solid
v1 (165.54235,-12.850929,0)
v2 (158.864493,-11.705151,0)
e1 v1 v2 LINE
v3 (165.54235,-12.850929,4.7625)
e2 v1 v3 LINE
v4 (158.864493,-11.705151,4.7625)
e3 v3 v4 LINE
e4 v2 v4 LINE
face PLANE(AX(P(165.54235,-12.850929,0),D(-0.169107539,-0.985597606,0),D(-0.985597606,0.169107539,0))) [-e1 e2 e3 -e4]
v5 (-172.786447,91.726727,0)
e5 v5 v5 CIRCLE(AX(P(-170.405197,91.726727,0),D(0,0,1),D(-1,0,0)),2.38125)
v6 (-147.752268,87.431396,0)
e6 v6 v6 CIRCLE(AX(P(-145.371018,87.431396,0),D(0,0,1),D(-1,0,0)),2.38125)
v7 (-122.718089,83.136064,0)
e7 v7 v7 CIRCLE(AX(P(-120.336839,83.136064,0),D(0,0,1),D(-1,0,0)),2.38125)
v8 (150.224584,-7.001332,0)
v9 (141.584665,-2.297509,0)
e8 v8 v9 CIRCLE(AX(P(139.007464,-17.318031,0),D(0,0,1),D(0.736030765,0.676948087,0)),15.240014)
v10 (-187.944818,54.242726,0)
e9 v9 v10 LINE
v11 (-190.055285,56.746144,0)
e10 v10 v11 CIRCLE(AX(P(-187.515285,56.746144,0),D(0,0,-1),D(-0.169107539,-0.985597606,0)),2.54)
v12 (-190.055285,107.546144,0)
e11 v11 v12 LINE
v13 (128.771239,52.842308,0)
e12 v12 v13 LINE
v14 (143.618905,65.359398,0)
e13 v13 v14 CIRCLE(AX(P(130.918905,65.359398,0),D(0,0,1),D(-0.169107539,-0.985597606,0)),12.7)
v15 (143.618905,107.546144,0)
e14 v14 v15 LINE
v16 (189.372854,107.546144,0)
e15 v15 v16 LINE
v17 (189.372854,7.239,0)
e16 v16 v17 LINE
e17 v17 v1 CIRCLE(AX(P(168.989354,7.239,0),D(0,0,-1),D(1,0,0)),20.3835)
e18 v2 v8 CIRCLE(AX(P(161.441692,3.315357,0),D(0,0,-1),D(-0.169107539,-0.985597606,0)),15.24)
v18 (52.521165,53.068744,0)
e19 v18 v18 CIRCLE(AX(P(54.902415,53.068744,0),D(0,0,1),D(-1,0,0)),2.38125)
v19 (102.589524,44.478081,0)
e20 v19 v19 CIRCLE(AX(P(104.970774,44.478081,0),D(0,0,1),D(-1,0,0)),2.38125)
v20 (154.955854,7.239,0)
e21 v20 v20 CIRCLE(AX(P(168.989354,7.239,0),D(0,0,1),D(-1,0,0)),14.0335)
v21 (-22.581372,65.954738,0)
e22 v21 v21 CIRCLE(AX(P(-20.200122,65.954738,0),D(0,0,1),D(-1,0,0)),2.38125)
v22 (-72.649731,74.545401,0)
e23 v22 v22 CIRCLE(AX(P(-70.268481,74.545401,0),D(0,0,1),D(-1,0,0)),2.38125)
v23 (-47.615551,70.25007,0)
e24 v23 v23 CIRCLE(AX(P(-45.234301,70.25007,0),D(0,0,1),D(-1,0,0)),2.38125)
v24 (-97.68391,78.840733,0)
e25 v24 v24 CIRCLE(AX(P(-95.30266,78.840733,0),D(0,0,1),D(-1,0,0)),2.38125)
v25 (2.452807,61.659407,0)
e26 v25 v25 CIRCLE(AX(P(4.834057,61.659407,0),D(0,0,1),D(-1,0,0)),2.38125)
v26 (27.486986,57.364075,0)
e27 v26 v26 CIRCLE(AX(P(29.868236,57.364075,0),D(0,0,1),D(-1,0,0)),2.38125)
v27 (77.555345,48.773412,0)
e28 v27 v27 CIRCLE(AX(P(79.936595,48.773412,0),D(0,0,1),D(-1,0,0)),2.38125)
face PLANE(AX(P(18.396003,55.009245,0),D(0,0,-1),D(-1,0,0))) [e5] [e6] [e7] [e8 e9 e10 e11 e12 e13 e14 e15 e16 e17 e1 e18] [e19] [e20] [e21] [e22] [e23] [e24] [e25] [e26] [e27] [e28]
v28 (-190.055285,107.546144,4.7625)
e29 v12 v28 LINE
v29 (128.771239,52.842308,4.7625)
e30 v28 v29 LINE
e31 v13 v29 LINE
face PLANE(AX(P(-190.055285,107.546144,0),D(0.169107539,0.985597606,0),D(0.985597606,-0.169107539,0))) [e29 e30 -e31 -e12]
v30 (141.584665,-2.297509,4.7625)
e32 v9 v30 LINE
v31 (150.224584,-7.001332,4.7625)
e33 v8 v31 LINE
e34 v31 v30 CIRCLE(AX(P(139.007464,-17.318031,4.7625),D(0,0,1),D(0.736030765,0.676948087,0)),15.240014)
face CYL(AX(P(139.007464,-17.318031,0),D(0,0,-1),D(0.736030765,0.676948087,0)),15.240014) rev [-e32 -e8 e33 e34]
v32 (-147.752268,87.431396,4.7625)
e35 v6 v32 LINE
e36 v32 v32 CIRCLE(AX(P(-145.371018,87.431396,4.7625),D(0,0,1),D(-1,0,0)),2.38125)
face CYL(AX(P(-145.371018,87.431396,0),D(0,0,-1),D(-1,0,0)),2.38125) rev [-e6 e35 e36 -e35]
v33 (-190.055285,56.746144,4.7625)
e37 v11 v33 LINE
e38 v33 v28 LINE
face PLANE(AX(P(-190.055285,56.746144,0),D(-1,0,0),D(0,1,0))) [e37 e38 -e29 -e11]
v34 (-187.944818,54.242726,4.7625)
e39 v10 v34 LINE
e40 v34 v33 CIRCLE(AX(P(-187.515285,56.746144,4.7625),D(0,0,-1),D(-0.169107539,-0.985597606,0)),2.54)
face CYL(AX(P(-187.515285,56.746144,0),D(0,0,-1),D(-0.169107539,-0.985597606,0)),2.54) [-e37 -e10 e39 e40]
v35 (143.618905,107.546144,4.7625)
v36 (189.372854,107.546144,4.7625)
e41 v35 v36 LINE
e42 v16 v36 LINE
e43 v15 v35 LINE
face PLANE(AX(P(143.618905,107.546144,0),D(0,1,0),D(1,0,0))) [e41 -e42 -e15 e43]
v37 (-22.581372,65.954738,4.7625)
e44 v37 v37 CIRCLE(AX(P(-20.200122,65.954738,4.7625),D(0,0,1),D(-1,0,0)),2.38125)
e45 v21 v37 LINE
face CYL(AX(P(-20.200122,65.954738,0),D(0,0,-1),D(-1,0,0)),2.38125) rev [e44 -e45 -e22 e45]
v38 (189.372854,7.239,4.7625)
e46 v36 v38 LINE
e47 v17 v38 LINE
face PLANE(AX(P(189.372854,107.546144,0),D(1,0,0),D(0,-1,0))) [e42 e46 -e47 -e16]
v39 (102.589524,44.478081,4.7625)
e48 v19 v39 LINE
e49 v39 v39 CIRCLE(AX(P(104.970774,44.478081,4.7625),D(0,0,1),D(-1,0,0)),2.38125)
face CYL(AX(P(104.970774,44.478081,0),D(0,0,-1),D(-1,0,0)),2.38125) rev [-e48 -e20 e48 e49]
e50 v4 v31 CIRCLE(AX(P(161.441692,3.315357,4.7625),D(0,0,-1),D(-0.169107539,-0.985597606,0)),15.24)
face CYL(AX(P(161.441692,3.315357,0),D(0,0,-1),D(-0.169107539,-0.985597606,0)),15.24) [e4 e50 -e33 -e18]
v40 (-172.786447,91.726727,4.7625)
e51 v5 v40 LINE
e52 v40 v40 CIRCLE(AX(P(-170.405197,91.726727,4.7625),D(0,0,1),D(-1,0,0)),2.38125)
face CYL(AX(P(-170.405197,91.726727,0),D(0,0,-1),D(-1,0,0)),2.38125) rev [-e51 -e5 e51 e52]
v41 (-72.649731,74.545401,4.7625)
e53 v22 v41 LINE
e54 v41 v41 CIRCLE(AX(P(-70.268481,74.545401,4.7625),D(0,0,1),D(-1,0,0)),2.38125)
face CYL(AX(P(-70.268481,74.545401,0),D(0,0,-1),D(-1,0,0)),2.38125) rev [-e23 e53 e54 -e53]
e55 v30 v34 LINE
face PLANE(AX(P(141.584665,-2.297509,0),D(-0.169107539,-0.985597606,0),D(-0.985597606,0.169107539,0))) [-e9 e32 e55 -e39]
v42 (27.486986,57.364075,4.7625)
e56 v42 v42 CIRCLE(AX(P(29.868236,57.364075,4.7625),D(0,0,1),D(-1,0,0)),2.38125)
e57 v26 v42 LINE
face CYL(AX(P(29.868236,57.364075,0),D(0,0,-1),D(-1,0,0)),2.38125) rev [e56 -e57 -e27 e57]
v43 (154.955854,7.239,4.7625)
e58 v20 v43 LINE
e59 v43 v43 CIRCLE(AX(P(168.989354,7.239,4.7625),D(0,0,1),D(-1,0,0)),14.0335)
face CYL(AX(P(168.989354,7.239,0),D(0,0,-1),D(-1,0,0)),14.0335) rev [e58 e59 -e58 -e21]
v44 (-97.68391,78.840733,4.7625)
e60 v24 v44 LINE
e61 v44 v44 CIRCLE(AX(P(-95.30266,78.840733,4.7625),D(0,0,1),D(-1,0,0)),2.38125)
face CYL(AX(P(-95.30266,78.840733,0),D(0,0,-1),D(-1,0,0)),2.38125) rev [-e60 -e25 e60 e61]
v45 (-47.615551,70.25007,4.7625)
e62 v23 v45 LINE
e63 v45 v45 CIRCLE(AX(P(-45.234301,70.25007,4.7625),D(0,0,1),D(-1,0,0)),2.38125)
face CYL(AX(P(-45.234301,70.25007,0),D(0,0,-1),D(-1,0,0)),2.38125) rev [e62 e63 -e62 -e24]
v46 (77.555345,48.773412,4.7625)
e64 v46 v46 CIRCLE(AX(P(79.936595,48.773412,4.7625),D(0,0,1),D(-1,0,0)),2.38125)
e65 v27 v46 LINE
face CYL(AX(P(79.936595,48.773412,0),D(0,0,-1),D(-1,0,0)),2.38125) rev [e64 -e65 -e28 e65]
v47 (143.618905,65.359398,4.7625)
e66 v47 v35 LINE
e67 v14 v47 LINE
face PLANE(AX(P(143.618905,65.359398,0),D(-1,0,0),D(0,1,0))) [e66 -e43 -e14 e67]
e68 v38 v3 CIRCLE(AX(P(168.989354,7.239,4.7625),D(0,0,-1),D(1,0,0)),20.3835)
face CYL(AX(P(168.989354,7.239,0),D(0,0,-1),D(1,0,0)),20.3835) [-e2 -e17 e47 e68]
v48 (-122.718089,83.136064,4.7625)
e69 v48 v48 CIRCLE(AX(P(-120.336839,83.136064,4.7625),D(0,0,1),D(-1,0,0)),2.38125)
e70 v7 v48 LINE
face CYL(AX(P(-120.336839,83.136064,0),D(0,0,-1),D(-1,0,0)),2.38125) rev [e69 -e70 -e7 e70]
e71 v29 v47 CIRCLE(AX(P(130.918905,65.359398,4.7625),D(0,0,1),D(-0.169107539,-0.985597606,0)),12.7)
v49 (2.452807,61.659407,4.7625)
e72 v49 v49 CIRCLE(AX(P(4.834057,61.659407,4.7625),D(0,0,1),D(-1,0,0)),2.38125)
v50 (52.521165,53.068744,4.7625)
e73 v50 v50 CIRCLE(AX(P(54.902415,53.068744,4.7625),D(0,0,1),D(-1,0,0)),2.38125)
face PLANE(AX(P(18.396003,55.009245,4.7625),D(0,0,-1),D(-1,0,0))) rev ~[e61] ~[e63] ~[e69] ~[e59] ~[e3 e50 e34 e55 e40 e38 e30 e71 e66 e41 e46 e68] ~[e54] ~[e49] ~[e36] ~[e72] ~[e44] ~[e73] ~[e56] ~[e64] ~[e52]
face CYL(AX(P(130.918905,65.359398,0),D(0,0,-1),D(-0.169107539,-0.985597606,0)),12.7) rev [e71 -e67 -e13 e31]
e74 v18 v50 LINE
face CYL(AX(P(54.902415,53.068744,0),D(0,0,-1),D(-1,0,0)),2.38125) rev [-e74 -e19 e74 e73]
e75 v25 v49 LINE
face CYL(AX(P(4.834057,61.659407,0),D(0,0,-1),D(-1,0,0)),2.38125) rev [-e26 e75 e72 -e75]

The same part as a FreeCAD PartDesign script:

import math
import FreeCAD as App
import Part
import Sketcher
from FreeCAD import Vector
Q = App.Units.Quantity

doc = App.newDocument("Part")
body = doc.addObject("PartDesign::Body", "Body")

# Sketch on XY plane
sketch1 = body.newObject("Sketcher::SketchObject", "Sketch")
sketch1.AttachmentSupport = (doc.getObject("XY_Plane"), [""])
sketch1.MapMode = "FlatFace"
sketch1.addGeometry(Part.LineSegment(Vector(158.864493, -11.705151, 0), Vector(165.54235, -12.850929, 0)), False)
sketch1.addGeometry(Part.ArcOfCircle(Part.Circle(Vector(168.989354, 7.239, 0), Vector(0, 0, 1), 20.3835), math.radians(-99.735934), math.radians(0)), False)
sketch1.addGeometry(Part.LineSegment(Vector(189.372854, 7.239, 0), Vector(189.372854, 107.546144, 0)), False)
sketch1.addGeometry(Part.LineSegment(Vector(189.372854, 107.546144, 0), Vector(143.618905, 107.546144, 0)), False)
sketch1.addGeometry(Part.LineSegment(Vector(143.618905, 107.546144, 0), Vector(143.618905, 65.359398, 0)), False)
sketch1.addGeometry(Part.ArcOfCircle(Part.Circle(Vector(130.918905, 65.359398, 0), Vector(0, 0, 1), 12.7), math.radians(-99.735934), math.radians(0)), False)
sketch1.addGeometry(Part.LineSegment(Vector(128.771239, 52.842308, 0), Vector(-190.055285, 107.546144, 0)), False)
sketch1.addGeometry(Part.LineSegment(Vector(-190.055285, 107.546144, 0), Vector(-190.055285, 56.746144, 0)), False)
sketch1.addGeometry(Part.ArcOfCircle(Part.Circle(Vector(-187.515285, 56.746144, 0), Vector(0, 0, 1), 2.54), math.radians(180), math.radians(260.264066)), False)
sketch1.addGeometry(Part.LineSegment(Vector(-187.944818, 54.242726, 0), Vector(141.584665, -2.297509, 0)), False)
sketch1.addGeometry(Part.ArcOfCircle(Part.Circle(Vector(139.007464, -17.318031, 0), Vector(0, 0, 1), 15.240014), math.radians(42.605614), math.radians(80.264066)), False)
sketch1.addGeometry(Part.ArcOfCircle(Part.Circle(Vector(161.441692, 3.315357, 0), Vector(0, 0, 1), 15.24), math.radians(-137.394386), math.radians(-99.735934)), False)
sketch1.addGeometry(Part.Circle(Vector(168.989354, 7.239, 0), Vector(0, 0, 1), 14.0335), False)
sketch1.addGeometry(Part.Circle(Vector(104.970774, 44.478081, 0), Vector(0, 0, 1), 2.38125), False)
sketch1.addGeometry(Part.Circle(Vector(79.936595, 48.773412, 0), Vector(0, 0, 1), 2.38125), False)
sketch1.addGeometry(Part.Circle(Vector(54.902415, 53.068744, 0), Vector(0, 0, 1), 2.38125), False)
sketch1.addGeometry(Part.Circle(Vector(29.868236, 57.364075, 0), Vector(0, 0, 1), 2.38125), False)
sketch1.addGeometry(Part.Circle(Vector(4.834057, 61.659407, 0), Vector(0, 0, 1), 2.38125), False)
sketch1.addGeometry(Part.Circle(Vector(-20.200122, 65.954738, 0), Vector(0, 0, 1), 2.38125), False)
sketch1.addGeometry(Part.Circle(Vector(-45.234301, 70.25007, 0), Vector(0, 0, 1), 2.38125), False)
sketch1.addGeometry(Part.Circle(Vector(-70.268481, 74.545401, 0), Vector(0, 0, 1), 2.38125), False)
sketch1.addGeometry(Part.Circle(Vector(-95.30266, 78.840733, 0), Vector(0, 0, 1), 2.38125), False)
sketch1.addGeometry(Part.Circle(Vector(-120.336839, 83.136064, 0), Vector(0, 0, 1), 2.38125), False)
sketch1.addGeometry(Part.Circle(Vector(-145.371018, 87.431396, 0), Vector(0, 0, 1), 2.38125), False)
sketch1.addGeometry(Part.Circle(Vector(-170.405197, 91.726727, 0), Vector(0, 0, 1), 2.38125), False)
sketch1.addConstraint(Sketcher.Constraint("Coincident", 0, 2, 1, 1))
sketch1.addConstraint(Sketcher.Constraint("Coincident", 1, 2, 2, 1))
sketch1.addConstraint(Sketcher.Constraint("Coincident", 2, 2, 3, 1))
sketch1.addConstraint(Sketcher.Constraint("Coincident", 3, 2, 4, 1))
sketch1.addConstraint(Sketcher.Constraint("Coincident", 4, 2, 5, 2))
sketch1.addConstraint(Sketcher.Constraint("Coincident", 5, 1, 6, 1))
sketch1.addConstraint(Sketcher.Constraint("Coincident", 6, 2, 7, 1))
sketch1.addConstraint(Sketcher.Constraint("Coincident", 7, 2, 8, 1))
sketch1.addConstraint(Sketcher.Constraint("Coincident", 8, 2, 9, 1))
sketch1.addConstraint(Sketcher.Constraint("Coincident", 9, 2, 10, 2))
sketch1.addConstraint(Sketcher.Constraint("Coincident", 10, 1, 11, 1))
sketch1.addConstraint(Sketcher.Constraint("Coincident", 11, 2, 0, 1))
sketch1.addConstraint(Sketcher.Constraint("Vertical", 2))
sketch1.addConstraint(Sketcher.Constraint("Horizontal", 3))
sketch1.addConstraint(Sketcher.Constraint("Vertical", 4))
sketch1.addConstraint(Sketcher.Constraint("Vertical", 7))
sketch1.addConstraint(Sketcher.Constraint("Coincident", 12, 3, 1, 3))
sketch1.addConstraint(Sketcher.Constraint("Radius", 5, Q("0.5 in")))
sketch1.addConstraint(Sketcher.Constraint("Radius", 8, Q("0.1 in")))
sketch1.addConstraint(Sketcher.Constraint("Radius", 11, Q("0.6 in")))
sketch1.addConstraint(Sketcher.Constraint("DistanceY", 7, 2, 7, 1, Q("2 in")))
sketch1.addConstraint(Sketcher.Constraint("Diameter", 12, Q("1.105 in")))
sketch1.addConstraint(Sketcher.Constraint("Diameter", 13, Q("0.1875 in")))
sketch1.addConstraint(Sketcher.Constraint("Diameter", 14, Q("0.1875 in")))
sketch1.addConstraint(Sketcher.Constraint("Diameter", 15, Q("0.1875 in")))
sketch1.addConstraint(Sketcher.Constraint("Diameter", 16, Q("0.1875 in")))
sketch1.addConstraint(Sketcher.Constraint("Diameter", 17, Q("0.1875 in")))
sketch1.addConstraint(Sketcher.Constraint("Diameter", 18, Q("0.1875 in")))
sketch1.addConstraint(Sketcher.Constraint("Diameter", 19, Q("0.1875 in")))
sketch1.addConstraint(Sketcher.Constraint("Diameter", 20, Q("0.1875 in")))
sketch1.addConstraint(Sketcher.Constraint("Diameter", 21, Q("0.1875 in")))
sketch1.addConstraint(Sketcher.Constraint("Diameter", 22, Q("0.1875 in")))
sketch1.addConstraint(Sketcher.Constraint("Diameter", 23, Q("0.1875 in")))
sketch1.addConstraint(Sketcher.Constraint("Diameter", 24, Q("0.1875 in")))
sketch1.addConstraint(Sketcher.Constraint("DistanceY", 8, 3, 6, 2, Q("2 in")))
sketch1.addConstraint(Sketcher.Constraint("Radius", 1, Q("0.8025 in")))
sketch1.addConstraint(Sketcher.Constraint("DistanceY", 2, 1, 2, 2, Q("3.9491001 in")))
sketch1.addConstraint(Sketcher.Constraint("DistanceY", -1, 1, 1, 3, Q("0.285 in")))
sketch1.addConstraint(Sketcher.Constraint("DistanceY", -1, 1, 1, 2, Q("0.285 in")))
sketch1.addConstraint(Sketcher.Constraint("DistanceY", -1, 1, 8, 3, Q("2.2341001 in")))
sketch1.addConstraint(Sketcher.Constraint("Radius", 10, Q("15.240014 mm")))
sketch1.addConstraint(Sketcher.Constraint("DistanceX", 3, 2, 3, 1, Q("45.753949 mm")))
sketch1.addConstraint(Sketcher.Constraint("DistanceY", -1, 1, 5, 3, Q("65.359398 mm")))
sketch1.addConstraint(Sketcher.Constraint("DistanceX", 19, 3, -1, 1, Q("45.234301 mm")))
sketch1.addConstraint(Sketcher.Constraint("DistanceY", -1, 1, 20, 3, Q("74.545401 mm")))
sketch1.addConstraint(Sketcher.Constraint("DistanceY", -1, 1, 4, 2, Q("65.359398 mm")))
sketch1.addConstraint(Sketcher.Constraint("DistanceY", 8, 2, 24, 3, Q("37.484001 mm")))
sketch1.addConstraint(Sketcher.Constraint("DistanceX", 8, 2, 23, 3, Q("42.5738 mm")))
sketch1.addConstraint(Sketcher.Constraint("DistanceX", 10, 3, 9, 2, Q("2.577201 mm")))
sketch1.addConstraint(Sketcher.Constraint("DistanceY", 10, 3, 10, 1, Q("10.316699 mm")))
sketch1.addConstraint(Sketcher.Constraint("DistanceX", 11, 2, 11, 3, Q("2.577199 mm")))
sketch1.addConstraint(Sketcher.Constraint("Distance", 0, Q("6.77544 mm")))
sketch1.addConstraint(Sketcher.Constraint("Distance", 6, Q("323.48549 mm")))
sketch1.addConstraint(Sketcher.Constraint("Distance", 9, Q("334.34485 mm")))
sketch1.addConstraint(Sketcher.Constraint("DistanceY", 10, 3, -1, 1, Q("17.318031 mm")))
sketch1.addConstraint(Sketcher.Constraint("DistanceY", -1, 1, 13, 3, Q("44.478081 mm")))
sketch1.addConstraint(Sketcher.Constraint("DistanceY", -1, 1, 18, 3, Q("65.954738 mm")))
sketch1.addConstraint(Sketcher.Constraint("DistanceY", -1, 1, 19, 3, Q("70.25007 mm")))
sketch1.addConstraint(Sketcher.Constraint("DistanceX", 20, 3, -1, 1, Q("70.268481 mm")))
sketch1.addConstraint(Sketcher.Constraint("DistanceX", 21, 3, -1, 1, Q("95.30266 mm")))
sketch1.addConstraint(Sketcher.Constraint("DistanceX", 22, 3, -1, 1, Q("120.336839 mm")))
sketch1.addConstraint(Sketcher.Constraint("DistanceX", 23, 3, -1, 1, Q("145.371018 mm")))
sketch1.addConstraint(Sketcher.Constraint("DistanceX", -1, 1, 0, 2, Q("165.54235 mm")))
sketch1.addConstraint(Sketcher.Constraint("DistanceY", 0, 2, -1, 1, Q("12.850929 mm")))
sketch1.addConstraint(Sketcher.Constraint("DistanceX", -1, 1, 5, 1, Q("128.771239 mm")))
sketch1.addConstraint(Sketcher.Constraint("DistanceX", 13, 3, 5, 3, Q("25.948131 mm")))
sketch1.addConstraint(Sketcher.Constraint("DistanceX", 14, 3, 13, 3, Q("25.034179 mm")))
sketch1.addConstraint(Sketcher.Constraint("DistanceY", 13, 3, 14, 3, Q("4.295331 mm")))
sketch1.addConstraint(Sketcher.Constraint("DistanceX", 15, 3, 14, 3, Q("25.034179 mm")))
sketch1.addConstraint(Sketcher.Constraint("DistanceY", 14, 3, 15, 3, Q("4.295331 mm")))
sketch1.addConstraint(Sketcher.Constraint("DistanceX", 16, 3, 15, 3, Q("25.034179 mm")))
sketch1.addConstraint(Sketcher.Constraint("DistanceY", 15, 3, 16, 3, Q("4.295331 mm")))
sketch1.addConstraint(Sketcher.Constraint("DistanceX", 17, 3, 16, 3, Q("25.034179 mm")))
sketch1.addConstraint(Sketcher.Constraint("DistanceY", 16, 3, 17, 3, Q("4.295331 mm")))
sketch1.addConstraint(Sketcher.Constraint("DistanceX", 18, 3, 17, 3, Q("25.034179 mm")))
sketch1.addConstraint(Sketcher.Constraint("DistanceY", 20, 3, 21, 3, Q("4.295331 mm")))
sketch1.addConstraint(Sketcher.Constraint("DistanceY", 21, 3, 22, 3, Q("4.295331 mm")))
sketch1.addConstraint(Sketcher.Constraint("DistanceY", 22, 3, 23, 3, Q("4.295331 mm")))
sketch1.addConstraint(Sketcher.Constraint("DistanceX", 24, 3, 23, 3, Q("25.034179 mm")))
pad1 = body.newObject("PartDesign::Pad", "Pad")
pad1.Profile = sketch1
pad1.Length = Q("0.1875 in")

# Sketch on XY plane
sketch2 = body.newObject("Sketcher::SketchObject", "Sketch001")
sketch2.AttachmentSupport = (doc.getObject("XY_Plane"), [""])
sketch2.MapMode = "FlatFace"
sketch2.AttachmentOffset = App.Placement(Vector(0, 0, 0.1875 * 25.4), App.Rotation())
sketch2.addGeometry(Part.LineSegment(Vector(115.993329, 323.427961, 0), Vector(125.872854, 333.307486, 0)), False)
sketch2.addGeometry(Part.LineSegment(Vector(125.872854, 333.307486, 0), Vector(17.922854, 333.307486, 0)), False)
sketch2.addGeometry(Part.LineSegment(Vector(17.922854, 333.307486, 0), Vector(107.375069, 320.553881, 0)), False)
sketch2.addGeometry(Part.ArcOfCircle(Part.Circle(Vector(108.809124, 330.612166, 0), Vector(0, 0, 1), 10.16), math.radians(-98.114231), math.radians(-45)), False)
sketch2.addConstraint(Sketcher.Constraint("Coincident", 0, 2, 1, 1))
sketch2.addConstraint(Sketcher.Constraint("Coincident", 1, 2, 2, 1))
sketch2.addConstraint(Sketcher.Constraint("Tangent", 2, 2, 3, 1))
sketch2.addConstraint(Sketcher.Constraint("Tangent", 3, 2, 0, 1))
sketch2.addConstraint(Sketcher.Constraint("Horizontal", 1))
sketch2.addConstraint(Sketcher.Constraint("Radius", 3, Q("0.4 in")))
sketch2.addConstraint(Sketcher.Constraint("Angle", 0, Q("45 deg")))
sketch2.addConstraint(Sketcher.Constraint("DistanceX", 1, 2, 1, 1, Q("4.25 in")))
sketch2.addConstraint(Sketcher.Constraint("Distance", 0, Q("13.971759 mm")))
sketch2.addConstraint(Sketcher.Constraint("DistanceX", -1, 1, 2, 2, Q("107.375069 mm")))
sketch2.addConstraint(Sketcher.Constraint("DistanceY", -1, 1, 2, 2, Q("320.553881 mm")))
pocket1 = body.newObject("PartDesign::Pocket", "Pocket")
pocket1.Profile = sketch2
pocket1.Type = "ThroughAll"

doc.recompute()
